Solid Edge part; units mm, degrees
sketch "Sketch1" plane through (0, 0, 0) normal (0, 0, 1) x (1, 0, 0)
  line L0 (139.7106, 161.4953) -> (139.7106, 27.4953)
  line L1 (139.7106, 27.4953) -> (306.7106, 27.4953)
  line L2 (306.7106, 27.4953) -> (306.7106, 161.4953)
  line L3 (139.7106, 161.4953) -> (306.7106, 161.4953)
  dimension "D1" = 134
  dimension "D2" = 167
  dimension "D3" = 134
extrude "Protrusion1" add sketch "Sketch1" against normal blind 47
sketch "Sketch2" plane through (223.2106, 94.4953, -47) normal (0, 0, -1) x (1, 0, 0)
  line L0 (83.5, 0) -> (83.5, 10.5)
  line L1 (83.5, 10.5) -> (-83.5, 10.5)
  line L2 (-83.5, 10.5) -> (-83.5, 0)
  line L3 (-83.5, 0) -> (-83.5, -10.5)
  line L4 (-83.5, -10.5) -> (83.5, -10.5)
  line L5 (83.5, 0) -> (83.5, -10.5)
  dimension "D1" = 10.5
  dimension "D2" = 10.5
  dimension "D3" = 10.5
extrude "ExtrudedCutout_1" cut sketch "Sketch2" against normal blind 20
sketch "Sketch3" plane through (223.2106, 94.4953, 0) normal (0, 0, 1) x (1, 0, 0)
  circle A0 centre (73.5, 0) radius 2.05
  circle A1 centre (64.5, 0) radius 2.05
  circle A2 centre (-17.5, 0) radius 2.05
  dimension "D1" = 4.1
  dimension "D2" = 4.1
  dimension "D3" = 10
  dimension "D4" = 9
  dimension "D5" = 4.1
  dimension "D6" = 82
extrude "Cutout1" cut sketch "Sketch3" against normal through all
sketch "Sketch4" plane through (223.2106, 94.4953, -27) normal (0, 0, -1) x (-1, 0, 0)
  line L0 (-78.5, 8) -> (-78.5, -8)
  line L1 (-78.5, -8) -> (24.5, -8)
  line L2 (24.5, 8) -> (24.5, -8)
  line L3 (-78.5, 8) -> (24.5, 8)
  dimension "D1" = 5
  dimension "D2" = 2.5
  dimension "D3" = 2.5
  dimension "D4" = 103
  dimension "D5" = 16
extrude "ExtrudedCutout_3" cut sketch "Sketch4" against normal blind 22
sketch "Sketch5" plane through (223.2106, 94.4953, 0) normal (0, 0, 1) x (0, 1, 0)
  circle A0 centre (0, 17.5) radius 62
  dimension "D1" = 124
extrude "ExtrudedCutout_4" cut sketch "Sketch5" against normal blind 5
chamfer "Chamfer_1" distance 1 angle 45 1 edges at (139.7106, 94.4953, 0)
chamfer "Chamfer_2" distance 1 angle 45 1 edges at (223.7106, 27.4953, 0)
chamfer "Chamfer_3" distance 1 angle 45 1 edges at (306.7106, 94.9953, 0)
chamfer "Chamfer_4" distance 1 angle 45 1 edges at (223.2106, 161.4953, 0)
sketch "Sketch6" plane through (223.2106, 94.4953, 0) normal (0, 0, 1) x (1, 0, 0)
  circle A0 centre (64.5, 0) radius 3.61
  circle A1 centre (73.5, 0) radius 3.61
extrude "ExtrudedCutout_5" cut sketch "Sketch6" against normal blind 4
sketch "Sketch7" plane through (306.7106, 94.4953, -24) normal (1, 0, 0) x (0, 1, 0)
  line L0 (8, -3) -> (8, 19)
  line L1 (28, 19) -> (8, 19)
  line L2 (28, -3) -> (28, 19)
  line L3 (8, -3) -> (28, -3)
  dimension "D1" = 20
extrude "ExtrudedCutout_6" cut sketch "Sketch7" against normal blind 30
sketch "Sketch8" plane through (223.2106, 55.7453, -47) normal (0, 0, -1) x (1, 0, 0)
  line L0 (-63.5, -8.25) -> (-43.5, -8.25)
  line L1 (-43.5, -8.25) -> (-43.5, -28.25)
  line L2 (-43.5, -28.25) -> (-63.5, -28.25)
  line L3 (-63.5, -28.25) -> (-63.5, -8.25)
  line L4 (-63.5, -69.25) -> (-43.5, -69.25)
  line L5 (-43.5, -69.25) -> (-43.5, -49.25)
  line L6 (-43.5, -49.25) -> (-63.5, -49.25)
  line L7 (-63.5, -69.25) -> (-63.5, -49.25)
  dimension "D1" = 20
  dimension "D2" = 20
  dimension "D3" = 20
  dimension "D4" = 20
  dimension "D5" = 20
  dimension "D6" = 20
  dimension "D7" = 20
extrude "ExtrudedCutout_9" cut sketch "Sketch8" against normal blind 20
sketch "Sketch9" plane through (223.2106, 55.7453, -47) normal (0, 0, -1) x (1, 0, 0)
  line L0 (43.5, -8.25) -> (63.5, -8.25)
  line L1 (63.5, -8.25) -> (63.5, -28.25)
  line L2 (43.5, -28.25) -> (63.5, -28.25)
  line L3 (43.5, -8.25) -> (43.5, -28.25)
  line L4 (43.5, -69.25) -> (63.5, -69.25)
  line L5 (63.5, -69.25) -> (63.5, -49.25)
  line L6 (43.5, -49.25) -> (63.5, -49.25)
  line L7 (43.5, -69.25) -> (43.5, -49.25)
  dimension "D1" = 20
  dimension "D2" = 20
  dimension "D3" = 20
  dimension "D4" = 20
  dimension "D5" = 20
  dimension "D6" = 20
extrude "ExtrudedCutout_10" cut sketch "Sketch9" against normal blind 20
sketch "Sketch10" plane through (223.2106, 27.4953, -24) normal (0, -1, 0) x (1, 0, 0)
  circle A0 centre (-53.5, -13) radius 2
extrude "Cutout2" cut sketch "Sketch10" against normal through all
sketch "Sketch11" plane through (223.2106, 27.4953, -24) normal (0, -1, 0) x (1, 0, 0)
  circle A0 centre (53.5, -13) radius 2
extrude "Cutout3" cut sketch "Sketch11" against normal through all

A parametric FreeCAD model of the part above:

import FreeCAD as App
import Part
import Sketcher
from FreeCAD import Vector


def edges_at(feature, points):
    """Names of the edges that pass closest to the given points."""
    edges = feature.Shape.Edges
    near = lambda p: min(range(len(edges)), key=lambda i: edges[i].distToShape(Part.Vertex(*p))[0])
    return sorted({f"Edge{near(p) + 1}" for p in points})

doc = App.newDocument("Part")
params = doc.addObject("Spreadsheet::Sheet", "Params")
for row, (alias, value) in enumerate([
    ("sketch1_width", "167 mm"),
    ("sketch1_height", "134 mm"),
    ("pad1_length", "47 mm"),
    ("sketch2_width", "167 mm"),
    ("sketch2_height", "21 mm"),
    ("pocket1_length", "20 mm"),
    ("sketch3_diameter", "4.1 mm"),
    ("sketch4_width", "103 mm"),
    ("sketch4_height", "16 mm"),
    ("pocket3_length", "22 mm"),
    ("sketch5_diameter", "124 mm"),
    ("pocket4_length", "5 mm"),
    ("chamfer_size", "1 mm"),
    ("chamfer2_size", "1 mm"),
    ("chamfer3_size", "1 mm"),
    ("chamfer4_size", "1 mm"),
    ("sketch6_diameter", "7.22 mm"),
    ("pocket5_length", "4 mm"),
    ("sketch7_width", "20 mm"),
    ("sketch7_height", "22 mm"),
    ("pocket6_length", "30 mm"),
    ("sketch8_width", "20 mm"),
    ("pocket7_length", "20 mm"),
    ("sketch9_width", "20 mm"),
    ("pocket8_length", "20 mm"),
    ("sketch10_diameter", "4 mm"),
    ("sketch11_diameter", "4 mm"),
], start=1):
    params.set(f"A{row}", alias)
    params.set(f"B{row}", "=" + value)
    params.setAlias(f"B{row}", alias)

body = doc.addObject("PartDesign::Body", "Body")

sketch1 = body.newObject("Sketcher::SketchObject", "Sketch")
sketch1.AttachmentSupport = (doc.getObject("XY_Plane"), [""])
sketch1.MapMode = "FlatFace"
sketch1.addGeometry([
    Part.LineSegment(Vector(306.7106, 161.4953, 0), Vector(139.7106, 161.4953, 0)),
    Part.LineSegment(Vector(139.7106, 161.4953, 0), Vector(139.7106, 27.4953, 0)),
    Part.LineSegment(Vector(139.7106, 27.4953, 0), Vector(306.7106, 27.4953, 0)),
    Part.LineSegment(Vector(306.7106, 27.4953, 0), Vector(306.7106, 161.4953, 0)),
], False)
sketch1.addConstraint([
    Sketcher.Constraint("Coincident", 0, 2, 1, 1),
    Sketcher.Constraint("Coincident", 1, 2, 2, 1),
    Sketcher.Constraint("Coincident", 2, 2, 3, 1),
    Sketcher.Constraint("Coincident", 3, 2, 0, 1),
    Sketcher.Constraint("Horizontal", 0),
    Sketcher.Constraint("Vertical", 1),
    Sketcher.Constraint("Horizontal", 2),
    Sketcher.Constraint("Vertical", 3),
    Sketcher.Constraint("DistanceX", 0, 2, 0, 1, 167.0),
    Sketcher.Constraint("DistanceY", 1, 2, 1, 1, 134.0),
    Sketcher.Constraint("DistanceX", -1, 1, 0, 2, 139.7106),
    Sketcher.Constraint("DistanceY", -1, 1, 0, 2, 161.4953),
])
sketch1.setExpression("Constraints[8]", "Params.sketch1_width")
sketch1.setExpression("Constraints[9]", "Params.sketch1_height")
pad1 = body.newObject("PartDesign::Pad", "Pad")
pad1.Profile = sketch1
pad1.setExpression("Length", "Params.pad1_length")
pad1.Reversed = True

sketch2 = body.newObject("Sketcher::SketchObject", "Sketch001")
sketch2.AttachmentSupport = (doc.getObject("XY_Plane"), [""])
sketch2.MapMode = "FlatFace"
sketch2.AttachmentOffset = App.Placement(Vector(0, 0, -47), App.Rotation())
sketch2.addGeometry([
    Part.LineSegment(Vector(306.7106, 104.9953, 0), Vector(306.7106, 83.9953, 0)),
    Part.LineSegment(Vector(306.7106, 83.9953, 0), Vector(139.7106, 83.9953, 0)),
    Part.LineSegment(Vector(139.7106, 83.9953, 0), Vector(139.7106, 104.9953, 0)),
    Part.LineSegment(Vector(139.7106, 104.9953, 0), Vector(306.7106, 104.9953, 0)),
], False)
sketch2.addConstraint([
    Sketcher.Constraint("Coincident", 0, 2, 1, 1),
    Sketcher.Constraint("Coincident", 1, 2, 2, 1),
    Sketcher.Constraint("Coincident", 2, 2, 3, 1),
    Sketcher.Constraint("Coincident", 3, 2, 0, 1),
    Sketcher.Constraint("Vertical", 0),
    Sketcher.Constraint("Horizontal", 1),
    Sketcher.Constraint("Vertical", 2),
    Sketcher.Constraint("Horizontal", 3),
    Sketcher.Constraint("DistanceX", 1, 2, 1, 1, 167.0),
    Sketcher.Constraint("DistanceY", 0, 2, 0, 1, 21.0),
    Sketcher.Constraint("DistanceX", -1, 1, 0, 2, 306.7106),
    Sketcher.Constraint("DistanceY", -1, 1, 0, 2, 83.9953),
])
sketch2.setExpression("Constraints[8]", "Params.sketch2_width")
sketch2.setExpression("Constraints[9]", "Params.sketch2_height")
pocket1 = body.newObject("PartDesign::Pocket", "Pocket")
pocket1.Profile = sketch2
pocket1.setExpression("Length", "Params.pocket1_length")
pocket1.Reversed = True

sketch3 = body.newObject("Sketcher::SketchObject", "Sketch002")
sketch3.AttachmentSupport = (doc.getObject("XY_Plane"), [""])
sketch3.MapMode = "FlatFace"
sketch3.addGeometry([
    Part.Circle(Vector(296.7106, 94.4953, 0), Vector(0, 0, 1), 2.05),
    Part.Circle(Vector(287.7106, 94.4953, 0), Vector(0, 0, 1), 2.05),
    Part.Circle(Vector(205.7106, 94.4953, 0), Vector(0, 0, 1), 2.05),
], False)
sketch3.addConstraint([
    Sketcher.Constraint("Equal", 0, 1),
    Sketcher.Constraint("Equal", 1, 2),
    Sketcher.Constraint("Horizontal", 0, 3, 1, 3),
    Sketcher.Constraint("Horizontal", 1, 3, 2, 3),
    Sketcher.Constraint("Diameter", 0, 4.1),
    Sketcher.Constraint("DistanceX", 1, 3, 0, 3, 9.0),
    Sketcher.Constraint("DistanceX", 2, 3, 1, 3, 82.0),
    Sketcher.Constraint("DistanceX", -1, 1, 0, 3, 296.7106),
    Sketcher.Constraint("DistanceY", -1, 1, 0, 3, 94.4953),
])
sketch3.setExpression("Constraints[4]", "Params.sketch3_diameter")
pocket2 = body.newObject("PartDesign::Pocket", "Pocket001")
pocket2.Profile = sketch3
pocket2.Type = "ThroughAll"

sketch4 = body.newObject("Sketcher::SketchObject", "Sketch003")
sketch4.AttachmentSupport = (doc.getObject("XY_Plane"), [""])
sketch4.MapMode = "FlatFace"
sketch4.AttachmentOffset = App.Placement(Vector(0, 0, -27), App.Rotation())
sketch4.addGeometry([
    Part.LineSegment(Vector(198.7106, 102.4953, 0), Vector(301.7106, 102.4953, 0)),
    Part.LineSegment(Vector(301.7106, 102.4953, 0), Vector(301.7106, 86.4953, 0)),
    Part.LineSegment(Vector(301.7106, 86.4953, 0), Vector(198.7106, 86.4953, 0)),
    Part.LineSegment(Vector(198.7106, 86.4953, 0), Vector(198.7106, 102.4953, 0)),
], False)
sketch4.addConstraint([
    Sketcher.Constraint("Coincident", 0, 2, 1, 1),
    Sketcher.Constraint("Coincident", 1, 2, 2, 1),
    Sketcher.Constraint("Coincident", 2, 2, 3, 1),
    Sketcher.Constraint("Coincident", 3, 2, 0, 1),
    Sketcher.Constraint("Horizontal", 0),
    Sketcher.Constraint("Vertical", 1),
    Sketcher.Constraint("Horizontal", 2),
    Sketcher.Constraint("Vertical", 3),
    Sketcher.Constraint("DistanceX", 0, 1, 0, 2, 103.0),
    Sketcher.Constraint("DistanceY", 1, 2, 1, 1, 16.0),
    Sketcher.Constraint("DistanceX", -1, 1, 0, 2, 301.7106),
    Sketcher.Constraint("DistanceY", -1, 1, 0, 2, 102.4953),
])
sketch4.setExpression("Constraints[8]", "Params.sketch4_width")
sketch4.setExpression("Constraints[9]", "Params.sketch4_height")
pocket3 = body.newObject("PartDesign::Pocket", "Pocket002")
pocket3.Profile = sketch4
pocket3.setExpression("Length", "Params.pocket3_length")
pocket3.Reversed = True

sketch5 = body.newObject("Sketcher::SketchObject", "Sketch004")
sketch5.AttachmentSupport = (doc.getObject("XY_Plane"), [""])
sketch5.MapMode = "FlatFace"
sketch5.addGeometry(Part.Circle(Vector(205.7106, 94.4953, 0), Vector(0, 0, 1), 62), False)
sketch5.addConstraint([
    Sketcher.Constraint("Diameter", 0, 124.0),
    Sketcher.Constraint("DistanceX", -1, 1, 0, 3, 205.7106),
    Sketcher.Constraint("DistanceY", -1, 1, 0, 3, 94.4953),
])
sketch5.setExpression("Constraints[0]", "Params.sketch5_diameter")
pocket4 = body.newObject("PartDesign::Pocket", "Pocket003")
pocket4.Profile = sketch5
pocket4.setExpression("Length", "Params.pocket4_length")
doc.recompute()

chamfer = body.newObject("PartDesign::Chamfer", "Chamfer")
chamfer.Base = (pocket4, edges_at(pocket4, [(139.711, 94.495, 0)]))
chamfer.setExpression("Size", "Params.chamfer_size")
doc.recompute()

chamfer2 = body.newObject("PartDesign::Chamfer", "Chamfer001")
chamfer2.Base = (chamfer, edges_at(chamfer, [(223.711, 27.495, 0)]))
chamfer2.setExpression("Size", "Params.chamfer2_size")
doc.recompute()

chamfer3 = body.newObject("PartDesign::Chamfer", "Chamfer002")
chamfer3.Base = (chamfer2, edges_at(chamfer2, [(306.711, 94.995, 0)]))
chamfer3.setExpression("Size", "Params.chamfer3_size")
doc.recompute()

chamfer4 = body.newObject("PartDesign::Chamfer", "Chamfer003")
chamfer4.Base = (chamfer3, edges_at(chamfer3, [(223.211, 161.495, 0)]))
chamfer4.setExpression("Size", "Params.chamfer4_size")

sketch6 = body.newObject("Sketcher::SketchObject", "Sketch005")
sketch6.AttachmentSupport = (doc.getObject("XY_Plane"), [""])
sketch6.MapMode = "FlatFace"
sketch6.addGeometry([
    Part.Circle(Vector(287.7106, 94.4953, 0), Vector(0, 0, 1), 3.61),
    Part.Circle(Vector(296.7106, 94.4953, 0), Vector(0, 0, 1), 3.61),
], False)
sketch6.addConstraint([
    Sketcher.Constraint("Equal", 0, 1),
    Sketcher.Constraint("Horizontal", 0, 3, 1, 3),
    Sketcher.Constraint("Diameter", 0, 7.22),
    Sketcher.Constraint("DistanceX", 0, 3, 1, 3, 9.0),
    Sketcher.Constraint("DistanceX", -1, 1, 0, 3, 287.7106),
    Sketcher.Constraint("DistanceY", -1, 1, 0, 3, 94.4953),
])
sketch6.setExpression("Constraints[2]", "Params.sketch6_diameter")
pocket5 = body.newObject("PartDesign::Pocket", "Pocket004")
pocket5.Profile = sketch6
pocket5.setExpression("Length", "Params.pocket5_length")

sketch7 = body.newObject("Sketcher::SketchObject", "Sketch006")
sketch7.AttachmentSupport = (doc.getObject("YZ_Plane"), [""])
sketch7.MapMode = "FlatFace"
sketch7.AttachmentOffset = App.Placement(Vector(0, 0, 306.7106), App.Rotation())
sketch7.addGeometry([
    Part.LineSegment(Vector(102.4953, -5, 0), Vector(102.4953, -27, 0)),
    Part.LineSegment(Vector(102.4953, -27, 0), Vector(122.4953, -27, 0)),
    Part.LineSegment(Vector(122.4953, -27, 0), Vector(122.4953, -5, 0)),
    Part.LineSegment(Vector(122.4953, -5, 0), Vector(102.4953, -5, 0)),
], False)
sketch7.addConstraint([
    Sketcher.Constraint("Coincident", 0, 2, 1, 1),
    Sketcher.Constraint("Coincident", 1, 2, 2, 1),
    Sketcher.Constraint("Coincident", 2, 2, 3, 1),
    Sketcher.Constraint("Coincident", 3, 2, 0, 1),
    Sketcher.Constraint("Vertical", 0),
    Sketcher.Constraint("Horizontal", 1),
    Sketcher.Constraint("Vertical", 2),
    Sketcher.Constraint("Horizontal", 3),
    Sketcher.Constraint("DistanceX", 1, 1, 1, 2, 20.0),
    Sketcher.Constraint("DistanceY", 0, 2, 0, 1, 22.0),
    Sketcher.Constraint("DistanceY", 0, 2, -1, 1, 27.0),
    Sketcher.Constraint("DistanceX", -1, 1, 0, 2, 102.4953),
])
sketch7.setExpression("Constraints[8]", "Params.sketch7_width")
sketch7.setExpression("Constraints[9]", "Params.sketch7_height")
pocket6 = body.newObject("PartDesign::Pocket", "Pocket005")
pocket6.Profile = sketch7
pocket6.setExpression("Length", "Params.pocket6_length")

sketch8 = body.newObject("Sketcher::SketchObject", "Sketch007")
sketch8.AttachmentSupport = (doc.getObject("XY_Plane"), [""])
sketch8.MapMode = "FlatFace"
sketch8.AttachmentOffset = App.Placement(Vector(0, 0, -47), App.Rotation())
sketch8.addGeometry([
    Part.LineSegment(Vector(179.7106, 63.9953, 0), Vector(159.7106, 63.9953, 0)),
    Part.LineSegment(Vector(159.7106, 63.9953, 0), Vector(159.7106, 83.9953, 0)),
    Part.LineSegment(Vector(159.7106, 83.9953, 0), Vector(179.7106, 83.9953, 0)),
    Part.LineSegment(Vector(179.7106, 83.9953, 0), Vector(179.7106, 63.9953, 0)),
    Part.LineSegment(Vector(159.7106, 104.9953, 0), Vector(159.7106, 124.9953, 0)),
    Part.LineSegment(Vector(159.7106, 124.9953, 0), Vector(179.7106, 124.9953, 0)),
    Part.LineSegment(Vector(179.7106, 124.9953, 0), Vector(179.7106, 104.9953, 0)),
    Part.LineSegment(Vector(179.7106, 104.9953, 0), Vector(159.7106, 104.9953, 0)),
], False)
sketch8.addConstraint([
    Sketcher.Constraint("Coincident", 0, 2, 1, 1),
    Sketcher.Constraint("Coincident", 1, 2, 2, 1),
    Sketcher.Constraint("Coincident", 2, 2, 3, 1),
    Sketcher.Constraint("Coincident", 3, 2, 0, 1),
    Sketcher.Constraint("Coincident", 4, 2, 5, 1),
    Sketcher.Constraint("Coincident", 5, 2, 6, 1),
    Sketcher.Constraint("Coincident", 6, 2, 7, 1),
    Sketcher.Constraint("Coincident", 7, 2, 4, 1),
    Sketcher.Constraint("Horizontal", 0),
    Sketcher.Constraint("Vertical", 1),
    Sketcher.Constraint("Horizontal", 2),
    Sketcher.Constraint("Vertical", 3),
    Sketcher.Constraint("Vertical", 4),
    Sketcher.Constraint("Horizontal", 5),
    Sketcher.Constraint("Vertical", 6),
    Sketcher.Constraint("Horizontal", 7),
    Sketcher.Constraint("Vertical", 1, 2, 4, 2),
    Sketcher.Constraint("Vertical", 3, 2, 5, 2),
    Sketcher.Constraint("Equal", 7, 1),
    Sketcher.Constraint("Equal", 3, 4),
    Sketcher.Constraint("DistanceX", 0, 2, 0, 1, 20.0),
    Sketcher.Constraint("DistanceY", 1, 2, 4, 2, 41.0),
    Sketcher.Constraint("DistanceX", -1, 1, 0, 2, 159.7106),
    Sketcher.Constraint("DistanceY", -1, 1, 0, 2, 63.9953),
])
sketch8.setExpression("Constraints[20]", "Params.sketch8_width")
pocket7 = body.newObject("PartDesign::Pocket", "Pocket006")
pocket7.Profile = sketch8
pocket7.setExpression("Length", "Params.pocket7_length")
pocket7.Reversed = True

sketch9 = body.newObject("Sketcher::SketchObject", "Sketch008")
sketch9.AttachmentSupport = (doc.getObject("XY_Plane"), [""])
sketch9.MapMode = "FlatFace"
sketch9.AttachmentOffset = App.Placement(Vector(0, 0, -47), App.Rotation())
sketch9.addGeometry([
    Part.LineSegment(Vector(286.7106, 63.9953, 0), Vector(266.7106, 63.9953, 0)),
    Part.LineSegment(Vector(266.7106, 63.9953, 0), Vector(266.7106, 83.9953, 0)),
    Part.LineSegment(Vector(266.7106, 83.9953, 0), Vector(286.7106, 83.9953, 0)),
    Part.LineSegment(Vector(286.7106, 83.9953, 0), Vector(286.7106, 63.9953, 0)),
    Part.LineSegment(Vector(266.7106, 104.9953, 0), Vector(266.7106, 124.9953, 0)),
    Part.LineSegment(Vector(266.7106, 124.9953, 0), Vector(286.7106, 124.9953, 0)),
    Part.LineSegment(Vector(286.7106, 124.9953, 0), Vector(286.7106, 104.9953, 0)),
    Part.LineSegment(Vector(286.7106, 104.9953, 0), Vector(266.7106, 104.9953, 0)),
], False)
sketch9.addConstraint([
    Sketcher.Constraint("Coincident", 0, 2, 1, 1),
    Sketcher.Constraint("Coincident", 1, 2, 2, 1),
    Sketcher.Constraint("Coincident", 2, 2, 3, 1),
    Sketcher.Constraint("Coincident", 3, 2, 0, 1),
    Sketcher.Constraint("Coincident", 4, 2, 5, 1),
    Sketcher.Constraint("Coincident", 5, 2, 6, 1),
    Sketcher.Constraint("Coincident", 6, 2, 7, 1),
    Sketcher.Constraint("Coincident", 7, 2, 4, 1),
    Sketcher.Constraint("Horizontal", 0),
    Sketcher.Constraint("Vertical", 1),
    Sketcher.Constraint("Horizontal", 2),
    Sketcher.Constraint("Vertical", 3),
    Sketcher.Constraint("Vertical", 4),
    Sketcher.Constraint("Horizontal", 5),
    Sketcher.Constraint("Vertical", 6),
    Sketcher.Constraint("Horizontal", 7),
    Sketcher.Constraint("Vertical", 1, 2, 4, 2),
    Sketcher.Constraint("Vertical", 3, 2, 5, 2),
    Sketcher.Constraint("Equal", 7, 1),
    Sketcher.Constraint("Equal", 3, 4),
    Sketcher.Constraint("DistanceX", 0, 2, 0, 1, 20.0),
    Sketcher.Constraint("DistanceY", 1, 2, 4, 2, 41.0),
    Sketcher.Constraint("DistanceX", -1, 1, 0, 2, 266.7106),
    Sketcher.Constraint("DistanceY", -1, 1, 0, 2, 63.9953),
])
sketch9.setExpression("Constraints[20]", "Params.sketch9_width")
pocket8 = body.newObject("PartDesign::Pocket", "Pocket007")
pocket8.Profile = sketch9
pocket8.setExpression("Length", "Params.pocket8_length")
pocket8.Reversed = True

sketch10 = body.newObject("Sketcher::SketchObject", "Sketch009")
sketch10.AttachmentSupport = (doc.getObject("XZ_Plane"), [""])
sketch10.MapMode = "FlatFace"
sketch10.AttachmentOffset = App.Placement(Vector(0, 0, -27.4953), App.Rotation())
sketch10.addGeometry(Part.Circle(Vector(169.7106, -37, 0), Vector(0, 0, 1), 2), False)
sketch10.addConstraint([
    Sketcher.Constraint("Diameter", 0, 4.0),
    Sketcher.Constraint("DistanceY", 0, 3, -1, 1, 37.0),
    Sketcher.Constraint("DistanceX", -1, 1, 0, 3, 169.7106),
])
sketch10.setExpression("Constraints[0]", "Params.sketch10_diameter")
pocket9 = body.newObject("PartDesign::Pocket", "Pocket008")
pocket9.Profile = sketch10
pocket9.Type = "ThroughAll"

sketch11 = body.newObject("Sketcher::SketchObject", "Sketch010")
sketch11.AttachmentSupport = (doc.getObject("XZ_Plane"), [""])
sketch11.MapMode = "FlatFace"
sketch11.AttachmentOffset = App.Placement(Vector(0, 0, -27.4953), App.Rotation())
sketch11.addGeometry(Part.Circle(Vector(276.7106, -37, 0), Vector(0, 0, 1), 2), False)
sketch11.addConstraint([
    Sketcher.Constraint("Diameter", 0, 4.0),
    Sketcher.Constraint("DistanceY", 0, 3, -1, 1, 37.0),
    Sketcher.Constraint("DistanceX", -1, 1, 0, 3, 276.7106),
])
sketch11.setExpression("Constraints[0]", "Params.sketch11_diameter")
pocket10 = body.newObject("PartDesign::Pocket", "Pocket009")
pocket10.Profile = sketch11
pocket10.Type = "ThroughAll"

doc.recompute()
